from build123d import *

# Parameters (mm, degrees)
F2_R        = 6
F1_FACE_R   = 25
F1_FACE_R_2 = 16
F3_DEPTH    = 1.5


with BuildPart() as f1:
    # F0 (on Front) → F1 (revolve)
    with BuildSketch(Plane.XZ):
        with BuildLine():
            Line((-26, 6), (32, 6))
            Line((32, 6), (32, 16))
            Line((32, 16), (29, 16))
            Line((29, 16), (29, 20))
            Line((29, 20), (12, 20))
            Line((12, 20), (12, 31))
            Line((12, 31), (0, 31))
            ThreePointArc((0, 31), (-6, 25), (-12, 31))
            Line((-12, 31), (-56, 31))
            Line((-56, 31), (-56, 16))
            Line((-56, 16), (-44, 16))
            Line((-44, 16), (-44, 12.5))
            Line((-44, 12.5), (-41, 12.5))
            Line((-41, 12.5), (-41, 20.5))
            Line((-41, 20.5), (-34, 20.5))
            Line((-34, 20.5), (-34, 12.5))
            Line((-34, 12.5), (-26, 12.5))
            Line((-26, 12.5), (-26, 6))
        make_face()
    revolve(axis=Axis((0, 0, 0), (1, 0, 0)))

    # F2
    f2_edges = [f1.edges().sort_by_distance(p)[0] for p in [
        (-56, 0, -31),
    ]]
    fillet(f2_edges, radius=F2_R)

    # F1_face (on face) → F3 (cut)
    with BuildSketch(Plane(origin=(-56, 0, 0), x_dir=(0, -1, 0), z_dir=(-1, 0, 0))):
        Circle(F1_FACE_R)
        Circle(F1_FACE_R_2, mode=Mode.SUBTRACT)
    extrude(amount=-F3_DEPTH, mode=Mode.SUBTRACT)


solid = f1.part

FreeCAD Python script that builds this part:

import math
import FreeCAD as App
import Part
import Sketcher
from FreeCAD import Vector
Q = App.Units.Quantity


def edges_at(feature, points):
    """Names of the edges that pass closest to the given points."""
    edges = feature.Shape.Edges
    near = lambda p: min(range(len(edges)), key=lambda i: edges[i].distToShape(Part.Vertex(*p))[0])
    return sorted({f"Edge{near(p) + 1}" for p in points})

doc = App.newDocument("Part")
body = doc.addObject("PartDesign::Body", "Body")

# Sketch on XZ plane
sketch1 = doc.addObject("Sketcher::SketchObject", "Sketch")
body.addObject(sketch1)
sketch1.AttachmentSupport = (doc.XZ_Plane, [""])
sketch1.MapMode = "FlatFace"
sketch1.addGeometry([
    Part.LineSegment(Vector(-26, 6, 0), Vector(32, 6, 0)),  # 0
    Part.LineSegment(Vector(32, 6, 0), Vector(32, 16, 0)),  # 1
    Part.LineSegment(Vector(32, 16, 0), Vector(29, 16, 0)),  # 2
    Part.LineSegment(Vector(29, 16, 0), Vector(29, 20, 0)),  # 3
    Part.LineSegment(Vector(29, 20, 0), Vector(12, 20, 0)),  # 4
    Part.LineSegment(Vector(12, 20, 0), Vector(12, 31, 0)),  # 5
    Part.LineSegment(Vector(12, 31, 0), Vector(0, 31, 0)),  # 6
    Part.ArcOfCircle(Part.Circle(Vector(-6, 31, 0), Vector(0, 0, 1), 6), math.radians(180), math.radians(360)),  # 7
    Part.LineSegment(Vector(-12, 31, 0), Vector(-56, 31, 0)),  # 8
    Part.LineSegment(Vector(-56, 31, 0), Vector(-56, 16, 0)),  # 9
    Part.LineSegment(Vector(-56, 16, 0), Vector(-44, 16, 0)),  # 10
    Part.LineSegment(Vector(-44, 16, 0), Vector(-44, 12.5, 0)),  # 11
    Part.LineSegment(Vector(-44, 12.5, 0), Vector(-41, 12.5, 0)),  # 12
    Part.LineSegment(Vector(-41, 12.5, 0), Vector(-41, 20.5, 0)),  # 13
    Part.LineSegment(Vector(-41, 20.5, 0), Vector(-34, 20.5, 0)),  # 14
    Part.LineSegment(Vector(-34, 20.5, 0), Vector(-34, 12.5, 0)),  # 15
    Part.LineSegment(Vector(-34, 12.5, 0), Vector(-26, 12.5, 0)),  # 16
    Part.LineSegment(Vector(-26, 12.5, 0), Vector(-26, 6, 0)),  # 17
], False)
sketch1.addConstraint([
    Sketcher.Constraint("Coincident", 0, 2, 1, 1),
    Sketcher.Constraint("Coincident", 1, 2, 2, 1),
    Sketcher.Constraint("Coincident", 2, 2, 3, 1),
    Sketcher.Constraint("Coincident", 3, 2, 4, 1),
    Sketcher.Constraint("Coincident", 4, 2, 5, 1),
    Sketcher.Constraint("Coincident", 5, 2, 6, 1),
    Sketcher.Constraint("Coincident", 6, 2, 7, 2),
    Sketcher.Constraint("Coincident", 7, 1, 8, 1),
    Sketcher.Constraint("Coincident", 8, 2, 9, 1),
    Sketcher.Constraint("Coincident", 9, 2, 10, 1),
    Sketcher.Constraint("Coincident", 10, 2, 11, 1),
    Sketcher.Constraint("Coincident", 11, 2, 12, 1),
    Sketcher.Constraint("Coincident", 12, 2, 13, 1),
    Sketcher.Constraint("Coincident", 13, 2, 14, 1),
    Sketcher.Constraint("Coincident", 14, 2, 15, 1),
    Sketcher.Constraint("Coincident", 15, 2, 16, 1),
    Sketcher.Constraint("Coincident", 16, 2, 17, 1),
    Sketcher.Constraint("Coincident", 17, 2, 0, 1),
    Sketcher.Constraint("Horizontal", 0),
    Sketcher.Constraint("Vertical", 1),
    Sketcher.Constraint("Horizontal", 2),
    Sketcher.Constraint("Vertical", 3),
    Sketcher.Constraint("Horizontal", 4),
    Sketcher.Constraint("Vertical", 5),
    Sketcher.Constraint("Horizontal", 6),
    Sketcher.Constraint("Horizontal", 8),
    Sketcher.Constraint("Vertical", 9),
    Sketcher.Constraint("Horizontal", 10),
    Sketcher.Constraint("Vertical", 11),
    Sketcher.Constraint("Horizontal", 12),
    Sketcher.Constraint("Vertical", 13),
    Sketcher.Constraint("Horizontal", 14),
    Sketcher.Constraint("Vertical", 15),
    Sketcher.Constraint("Horizontal", 16),
    Sketcher.Constraint("Vertical", 17),
    Sketcher.Constraint("Symmetric", 5, 2, 7, 1, -2),
    Sketcher.Constraint("PointOnObject", 6, 2, -2),
    Sketcher.Constraint("Horizontal", 7, 3, 5, 2),
    Sketcher.Constraint("Horizontal", 2, 2, 9, 2),
    Sketcher.Constraint("Horizontal", 12, 2, 15, 2),
    Sketcher.Constraint("Equal", 6, 10),
    Sketcher.Constraint("Equal", 2, 12),
    Sketcher.Constraint("Equal", 16, 13),
    Sketcher.Constraint("Radius", 7, Q("6 mm")),
    Sketcher.Constraint("DistanceX", 0, 1, 0, 2, Q("58 mm")),
    Sketcher.Constraint("DistanceX", 2, 2, 2, 1, Q("3 mm")),
    Sketcher.Constraint("DistanceX", 4, 2, 4, 1, Q("17 mm")),
    Sketcher.Constraint("DistanceX", 8, 2, 8, 1, Q("44 mm")),
    Sketcher.Constraint("DistanceX", 14, 1, 14, 2, Q("7 mm")),
    Sketcher.Constraint("DistanceY", 1, 1, 1, 2, Q("10 mm")),
    Sketcher.Constraint("DistanceY", 3, 1, 3, 2, Q("4 mm")),
    Sketcher.Constraint("DistanceY", 5, 1, 5, 2, Q("11 mm")),
    Sketcher.Constraint("DistanceY", 11, 2, 11, 1, Q("3.5 mm")),
    Sketcher.Constraint("DistanceY", -1, 1, 7, 3, Q("31 mm")),
])
revolution = doc.addObject("PartDesign::Revolution", "Revolution")
body.addObject(revolution)
revolution.Profile = sketch1
revolution.ReferenceAxis = (sketch1, ["H_Axis"])
revolution.Angle = 360
doc.recompute()

fillet = doc.addObject("PartDesign::Fillet", "Fillet")
body.addObject(fillet)
fillet.Base = (revolution, edges_at(revolution, [(-56, 0, -31)]))
fillet.Radius = 6

# Sketch on YZ plane
sketch2 = doc.addObject("Sketcher::SketchObject", "Sketch001")
body.addObject(sketch2)
sketch2.AttachmentSupport = (doc.YZ_Plane, [""])
sketch2.MapMode = "FlatFace"
sketch2.AttachmentOffset = App.Placement(Vector(0, 0, -56), App.Rotation())
sketch2.addGeometry([
    Part.Circle(Vector(0, 0, 0), Vector(0, 0, 1), 25),
    Part.Circle(Vector(0, 0, 0), Vector(0, 0, 1), 16),
], False)
sketch2.addConstraint([
    Sketcher.Constraint("Coincident", 0, 3, -1, 1),
    Sketcher.Constraint("Coincident", 1, 3, -1, 1),
    Sketcher.Constraint("Diameter", 0, Q("50 mm")),
    Sketcher.Constraint("Diameter", 1, Q("32 mm")),
])
pocket1 = doc.addObject("PartDesign::Pocket", "Pocket")
body.addObject(pocket1)
pocket1.Profile = sketch2
pocket1.Length = 1.5
pocket1.Reversed = True

doc.recompute()
